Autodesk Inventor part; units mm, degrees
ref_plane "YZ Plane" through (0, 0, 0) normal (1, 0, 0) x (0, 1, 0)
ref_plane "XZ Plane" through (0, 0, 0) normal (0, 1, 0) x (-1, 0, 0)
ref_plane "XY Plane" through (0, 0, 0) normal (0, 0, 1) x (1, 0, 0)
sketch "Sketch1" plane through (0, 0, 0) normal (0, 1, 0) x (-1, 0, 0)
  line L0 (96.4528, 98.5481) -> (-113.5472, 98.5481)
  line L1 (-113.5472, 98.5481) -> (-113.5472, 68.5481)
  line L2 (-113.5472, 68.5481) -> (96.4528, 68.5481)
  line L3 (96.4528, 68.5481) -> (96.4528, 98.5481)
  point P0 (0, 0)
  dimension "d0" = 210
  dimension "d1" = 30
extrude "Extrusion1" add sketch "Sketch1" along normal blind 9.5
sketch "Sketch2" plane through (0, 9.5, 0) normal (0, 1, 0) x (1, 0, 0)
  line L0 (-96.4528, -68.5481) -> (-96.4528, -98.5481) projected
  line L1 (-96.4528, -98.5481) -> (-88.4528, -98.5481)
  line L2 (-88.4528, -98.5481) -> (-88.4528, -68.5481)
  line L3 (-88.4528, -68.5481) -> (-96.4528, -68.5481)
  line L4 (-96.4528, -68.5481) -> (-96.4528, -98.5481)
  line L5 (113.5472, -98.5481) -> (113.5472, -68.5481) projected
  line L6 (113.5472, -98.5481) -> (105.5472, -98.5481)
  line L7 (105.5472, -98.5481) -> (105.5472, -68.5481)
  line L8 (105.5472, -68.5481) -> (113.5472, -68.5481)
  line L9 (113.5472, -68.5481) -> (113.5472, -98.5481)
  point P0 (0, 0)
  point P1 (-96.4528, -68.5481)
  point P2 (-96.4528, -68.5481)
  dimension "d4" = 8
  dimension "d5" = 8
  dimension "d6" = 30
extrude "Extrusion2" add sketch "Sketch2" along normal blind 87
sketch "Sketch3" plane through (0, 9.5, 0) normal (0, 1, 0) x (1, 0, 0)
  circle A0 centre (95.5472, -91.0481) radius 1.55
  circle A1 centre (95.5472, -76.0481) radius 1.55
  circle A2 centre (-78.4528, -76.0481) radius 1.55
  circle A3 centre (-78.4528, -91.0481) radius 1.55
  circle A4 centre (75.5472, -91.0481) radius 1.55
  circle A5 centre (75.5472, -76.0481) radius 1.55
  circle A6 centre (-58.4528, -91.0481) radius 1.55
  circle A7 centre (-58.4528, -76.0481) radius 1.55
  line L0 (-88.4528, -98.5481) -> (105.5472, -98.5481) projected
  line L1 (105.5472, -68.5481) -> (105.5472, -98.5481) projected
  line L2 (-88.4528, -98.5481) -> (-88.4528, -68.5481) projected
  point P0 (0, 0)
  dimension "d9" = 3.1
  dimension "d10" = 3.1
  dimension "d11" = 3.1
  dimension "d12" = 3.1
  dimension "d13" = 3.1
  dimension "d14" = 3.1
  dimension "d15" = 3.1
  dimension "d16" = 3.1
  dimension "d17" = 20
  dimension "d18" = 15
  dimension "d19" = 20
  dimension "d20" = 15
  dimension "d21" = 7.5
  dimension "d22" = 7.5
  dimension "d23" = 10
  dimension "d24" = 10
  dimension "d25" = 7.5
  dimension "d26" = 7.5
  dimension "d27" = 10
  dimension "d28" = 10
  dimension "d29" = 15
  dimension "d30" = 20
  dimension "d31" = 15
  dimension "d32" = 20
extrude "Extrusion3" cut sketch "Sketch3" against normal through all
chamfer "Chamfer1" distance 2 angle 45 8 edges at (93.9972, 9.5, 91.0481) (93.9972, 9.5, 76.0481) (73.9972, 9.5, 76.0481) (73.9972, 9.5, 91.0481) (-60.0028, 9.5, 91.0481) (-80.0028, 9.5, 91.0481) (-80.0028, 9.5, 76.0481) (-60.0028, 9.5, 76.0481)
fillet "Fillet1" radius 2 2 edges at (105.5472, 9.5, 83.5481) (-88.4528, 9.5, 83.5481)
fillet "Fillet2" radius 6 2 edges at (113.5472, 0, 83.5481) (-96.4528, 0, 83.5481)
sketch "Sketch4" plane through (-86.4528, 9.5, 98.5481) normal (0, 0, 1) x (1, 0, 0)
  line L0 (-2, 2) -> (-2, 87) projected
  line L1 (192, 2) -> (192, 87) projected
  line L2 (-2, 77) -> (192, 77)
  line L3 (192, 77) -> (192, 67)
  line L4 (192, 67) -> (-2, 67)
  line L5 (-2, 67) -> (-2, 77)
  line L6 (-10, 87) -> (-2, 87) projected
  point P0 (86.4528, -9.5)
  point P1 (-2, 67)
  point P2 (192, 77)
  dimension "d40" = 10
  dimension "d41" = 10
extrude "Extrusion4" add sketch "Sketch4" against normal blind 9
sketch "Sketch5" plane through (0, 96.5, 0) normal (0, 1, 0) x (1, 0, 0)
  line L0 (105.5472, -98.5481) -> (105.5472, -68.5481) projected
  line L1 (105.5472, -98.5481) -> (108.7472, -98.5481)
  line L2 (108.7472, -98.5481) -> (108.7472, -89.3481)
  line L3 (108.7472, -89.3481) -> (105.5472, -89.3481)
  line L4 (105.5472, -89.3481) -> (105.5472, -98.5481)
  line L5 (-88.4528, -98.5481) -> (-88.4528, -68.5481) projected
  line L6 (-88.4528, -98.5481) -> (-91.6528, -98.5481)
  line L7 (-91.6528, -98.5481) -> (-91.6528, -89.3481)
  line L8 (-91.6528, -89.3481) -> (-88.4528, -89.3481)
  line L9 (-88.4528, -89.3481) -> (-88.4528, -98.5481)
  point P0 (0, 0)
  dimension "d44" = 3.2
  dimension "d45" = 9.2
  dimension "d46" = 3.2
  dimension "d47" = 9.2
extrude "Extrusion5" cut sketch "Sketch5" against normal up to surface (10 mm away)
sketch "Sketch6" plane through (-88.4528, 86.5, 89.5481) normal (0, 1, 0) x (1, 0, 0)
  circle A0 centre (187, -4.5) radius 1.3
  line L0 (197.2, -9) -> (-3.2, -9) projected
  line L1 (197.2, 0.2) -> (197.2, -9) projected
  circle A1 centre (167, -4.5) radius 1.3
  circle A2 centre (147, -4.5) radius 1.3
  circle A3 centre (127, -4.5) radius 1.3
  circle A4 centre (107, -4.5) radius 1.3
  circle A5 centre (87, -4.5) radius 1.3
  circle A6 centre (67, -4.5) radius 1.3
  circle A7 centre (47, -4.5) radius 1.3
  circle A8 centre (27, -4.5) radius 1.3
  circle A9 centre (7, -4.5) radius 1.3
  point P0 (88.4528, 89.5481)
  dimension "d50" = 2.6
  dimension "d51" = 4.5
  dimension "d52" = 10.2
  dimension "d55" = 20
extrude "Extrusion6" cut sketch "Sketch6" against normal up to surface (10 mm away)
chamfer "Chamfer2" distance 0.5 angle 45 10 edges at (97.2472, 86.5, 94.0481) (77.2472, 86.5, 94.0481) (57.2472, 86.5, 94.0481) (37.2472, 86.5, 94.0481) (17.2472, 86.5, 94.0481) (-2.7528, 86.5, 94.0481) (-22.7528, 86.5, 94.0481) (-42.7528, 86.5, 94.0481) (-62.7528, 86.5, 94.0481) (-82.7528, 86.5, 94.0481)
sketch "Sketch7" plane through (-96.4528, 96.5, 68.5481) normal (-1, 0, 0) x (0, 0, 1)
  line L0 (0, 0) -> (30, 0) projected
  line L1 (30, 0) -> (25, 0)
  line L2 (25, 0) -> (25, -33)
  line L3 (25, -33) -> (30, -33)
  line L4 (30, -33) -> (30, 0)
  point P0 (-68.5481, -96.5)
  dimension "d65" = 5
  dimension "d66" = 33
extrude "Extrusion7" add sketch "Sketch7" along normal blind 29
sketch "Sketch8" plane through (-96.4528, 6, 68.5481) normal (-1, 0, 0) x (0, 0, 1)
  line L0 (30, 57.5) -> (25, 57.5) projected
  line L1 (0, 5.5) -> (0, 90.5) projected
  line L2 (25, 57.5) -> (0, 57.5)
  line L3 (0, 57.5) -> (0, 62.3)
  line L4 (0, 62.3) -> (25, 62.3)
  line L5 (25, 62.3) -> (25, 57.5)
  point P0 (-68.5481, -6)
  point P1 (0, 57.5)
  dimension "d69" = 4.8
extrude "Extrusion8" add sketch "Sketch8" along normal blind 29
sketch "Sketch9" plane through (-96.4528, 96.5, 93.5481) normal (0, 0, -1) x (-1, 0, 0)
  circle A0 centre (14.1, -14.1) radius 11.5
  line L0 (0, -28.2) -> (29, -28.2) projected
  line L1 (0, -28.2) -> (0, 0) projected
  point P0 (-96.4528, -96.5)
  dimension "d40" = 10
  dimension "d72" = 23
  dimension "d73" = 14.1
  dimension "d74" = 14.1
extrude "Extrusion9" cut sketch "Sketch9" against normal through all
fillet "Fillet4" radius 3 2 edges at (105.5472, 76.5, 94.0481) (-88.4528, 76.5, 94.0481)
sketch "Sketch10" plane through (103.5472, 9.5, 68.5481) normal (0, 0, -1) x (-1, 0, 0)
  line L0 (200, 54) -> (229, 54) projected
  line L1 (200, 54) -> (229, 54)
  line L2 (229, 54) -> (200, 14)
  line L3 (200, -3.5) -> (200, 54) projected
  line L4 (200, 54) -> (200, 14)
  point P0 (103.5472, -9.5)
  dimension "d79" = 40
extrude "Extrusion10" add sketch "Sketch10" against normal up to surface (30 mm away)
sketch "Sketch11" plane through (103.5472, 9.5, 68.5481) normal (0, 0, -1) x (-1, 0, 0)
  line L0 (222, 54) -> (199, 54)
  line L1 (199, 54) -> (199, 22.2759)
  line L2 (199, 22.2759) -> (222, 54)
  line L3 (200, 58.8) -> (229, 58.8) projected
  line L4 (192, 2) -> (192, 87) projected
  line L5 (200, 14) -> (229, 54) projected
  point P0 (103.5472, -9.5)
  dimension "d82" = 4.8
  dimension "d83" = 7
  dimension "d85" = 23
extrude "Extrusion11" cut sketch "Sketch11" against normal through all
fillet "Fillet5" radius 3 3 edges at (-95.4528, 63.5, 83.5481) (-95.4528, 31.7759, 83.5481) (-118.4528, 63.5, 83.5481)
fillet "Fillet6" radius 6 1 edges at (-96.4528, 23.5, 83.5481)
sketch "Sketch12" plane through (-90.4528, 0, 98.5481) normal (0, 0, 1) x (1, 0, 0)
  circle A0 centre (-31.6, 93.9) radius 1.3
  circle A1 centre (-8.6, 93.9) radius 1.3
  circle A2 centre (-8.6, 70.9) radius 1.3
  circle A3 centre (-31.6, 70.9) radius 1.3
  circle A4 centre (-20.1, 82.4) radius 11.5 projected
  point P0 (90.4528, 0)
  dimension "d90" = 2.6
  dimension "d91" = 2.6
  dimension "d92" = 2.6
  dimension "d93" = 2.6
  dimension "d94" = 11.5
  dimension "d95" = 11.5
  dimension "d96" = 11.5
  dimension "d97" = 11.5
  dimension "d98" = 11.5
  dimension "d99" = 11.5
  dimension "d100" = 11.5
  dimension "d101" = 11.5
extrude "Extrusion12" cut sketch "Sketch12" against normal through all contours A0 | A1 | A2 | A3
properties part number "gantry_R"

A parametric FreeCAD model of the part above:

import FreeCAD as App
import Part
import Sketcher

V = App.Vector


def edges_at(feature, points):
    """Names of the edges that pass closest to the given points."""
    edges = feature.Shape.Edges
    near = lambda p: min(range(len(edges)), key=lambda i: edges[i].distToShape(Part.Vertex(*p))[0])
    return sorted({f"Edge{near(p) + 1}" for p in points})


def add_polygon(sketch, points):
    """Adds a closed chain of lines whose ends are joined by coincident constraints."""
    first, n = sketch.GeometryCount, len(points)
    for a, b in zip(points, points[1:] + points[:1]):
        sketch.addGeometry(Part.LineSegment(App.Vector(*a, 0), App.Vector(*b, 0)), False)
    for i in range(n):
        sketch.addConstraint(Sketcher.Constraint("Coincident", first + i, 2, first + (i + 1) % n, 1))

doc = App.newDocument("Part")
body = doc.addObject("PartDesign::Body", "Body")

# Sketch on XZ plane
sketch1 = body.newObject("Sketcher::SketchObject", "Sketch")
sketch1.AttachmentSupport = (doc.getObject("XZ_Plane"), [""])
sketch1.MapMode = "FlatFace"
add_polygon(sketch1, [(-96, 69), (-96, 99), (114, 99), (114, 69)])  # lines 0-3
sketch1.addConstraint([
    Sketcher.Constraint("Vertical", 0),
    Sketcher.Constraint("Horizontal", 1),
    Sketcher.Constraint("Vertical", 2),
    Sketcher.Constraint("Horizontal", 3),
    Sketcher.Constraint("DistanceX", 1, 1, 1, 2, 210.0),
    Sketcher.Constraint("DistanceY", 0, 1, 0, 2, 30.0),
    Sketcher.Constraint("DistanceY", -1, 1, 0, 2, 98.548),
    Sketcher.Constraint("DistanceX", 0, 2, -1, 1, 96.4528),
])
pad1 = body.newObject("PartDesign::Pad", "Pad")
pad1.Profile = sketch1
pad1.Length = 9.5
pad1.Reversed = True

# Sketch on XZ plane
sketch2 = body.newObject("Sketcher::SketchObject", "Sketch001")
sketch2.AttachmentSupport = (doc.getObject("XZ_Plane"), [""])
sketch2.MapMode = "FlatFace"
sketch2.AttachmentOffset = App.Placement(V(0, 0, -9.5), App.Rotation())
add_polygon(sketch2, [(-88, 69), (-96, 69), (-96, 99), (-88, 99)])  # lines 0-3
add_polygon(sketch2, [(106, 99), (114, 99), (114, 69), (106, 69)])  # lines 4-7
sketch2.addConstraint([
    Sketcher.Constraint("Horizontal", 0),
    Sketcher.Constraint("Vertical", 1),
    Sketcher.Constraint("Horizontal", 2),
    Sketcher.Constraint("Vertical", 3),
    Sketcher.Constraint("Horizontal", 4),
    Sketcher.Constraint("Vertical", 5),
    Sketcher.Constraint("Horizontal", 6),
    Sketcher.Constraint("Vertical", 7),
    Sketcher.Constraint("Horizontal", 2, 2, 4, 2),
    Sketcher.Constraint("Horizontal", 3, 2, 5, 2),
    Sketcher.Constraint("Equal", 2, 4),
    Sketcher.Constraint("DistanceX", 0, 2, 0, 1, 8.0),
    Sketcher.Constraint("DistanceY", 1, 1, 1, 2, 30.0),
    Sketcher.Constraint("DistanceX", 2, 2, 4, 2, 202.0),
    Sketcher.Constraint("DistanceY", -1, 1, 0, 2, 68.548),
    Sketcher.Constraint("DistanceX", 0, 2, -1, 1, 96.4528),
])
pad2 = body.newObject("PartDesign::Pad", "Pad001")
pad2.Profile = sketch2
pad2.Length = 87
pad2.Reversed = True

# Sketch on XZ plane
sketch3 = body.newObject("Sketcher::SketchObject", "Sketch002")
sketch3.AttachmentSupport = (doc.getObject("XZ_Plane"), [""])
sketch3.MapMode = "FlatFace"
sketch3.AttachmentOffset = App.Placement(V(0, 0, -9.5), App.Rotation())
sketch3.addGeometry([
    Part.Circle(V(95.5, 91, 0), V(0, 0, 1), 1.6),  # 0
    Part.Circle(V(95.5, 76, 0), V(0, 0, 1), 1.6),  # 1
    Part.Circle(V(-78.5, 76, 0), V(0, 0, 1), 1.6),  # 2
    Part.Circle(V(-78.5, 91, 0), V(0, 0, 1), 1.6),  # 3
    Part.Circle(V(75.5, 91, 0), V(0, 0, 1), 1.6),  # 4
    Part.Circle(V(75.5, 76, 0), V(0, 0, 1), 1.6),  # 5
    Part.Circle(V(-58.5, 91, 0), V(0, 0, 1), 1.6),  # 6
    Part.Circle(V(-58.5, 76, 0), V(0, 0, 1), 1.6),  # 7
], False)
sketch3.addConstraint([
    Sketcher.Constraint("Equal", 0, 1),
    Sketcher.Constraint("Equal", 1, 2),
    Sketcher.Constraint("Equal", 2, 3),
    Sketcher.Constraint("Equal", 3, 4),
    Sketcher.Constraint("Equal", 4, 5),
    Sketcher.Constraint("Equal", 5, 6),
    Sketcher.Constraint("Equal", 6, 7),
    Sketcher.Constraint("Horizontal", 1, 3, 2, 3),
    Sketcher.Constraint("Horizontal", 0, 3, 3, 3),
    Sketcher.Constraint("Horizontal", 3, 3, 4, 3),
    Sketcher.Constraint("Horizontal", 2, 3, 5, 3),
    Sketcher.Constraint("Horizontal", 4, 3, 6, 3),
    Sketcher.Constraint("Horizontal", 5, 3, 7, 3),
    Sketcher.Constraint("Vertical", 0, 3, 1, 3),
    Sketcher.Constraint("Vertical", 2, 3, 3, 3),
    Sketcher.Constraint("Vertical", 4, 3, 5, 3),
    Sketcher.Constraint("Vertical", 6, 3, 7, 3),
    Sketcher.Constraint("Diameter", 0, 3.1),
    Sketcher.Constraint("DistanceY", 1, 3, 0, 3, 15.0),
    Sketcher.Constraint("DistanceX", 4, 3, 0, 3, 20.0),
    Sketcher.Constraint("DistanceX", 3, 3, 6, 3, 20.0),
    Sketcher.Constraint("DistanceX", 2, 3, 1, 3, 174.0),
    Sketcher.Constraint("DistanceY", -1, 1, 0, 3, 91.048),
    Sketcher.Constraint("DistanceX", -1, 1, 0, 3, 95.5472),
])
pocket1 = body.newObject("PartDesign::Pocket", "Pocket")
pocket1.Profile = sketch3
pocket1.Type = "ThroughAll"
pocket1.Reversed = True
doc.recompute()

chamfer = body.newObject("PartDesign::Chamfer", "Chamfer")
chamfer.Base = (pocket1, edges_at(pocket1, [
    (93.997, 9.5, 91.048),
    (93.997, 9.5, 76.048),
    (73.997, 9.5, 76.048),
    (73.997, 9.5, 91.048),
    (-60.003, 9.5, 91.048),
    (-80.003, 9.5, 91.048),
    (-80.003, 9.5, 76.048),
    (-60.003, 9.5, 76.048),
]))
chamfer.Size = 2
doc.recompute()

fillet = body.newObject("PartDesign::Fillet", "Fillet")
fillet.Base = (chamfer, edges_at(chamfer, [(105.547, 9.5, 83.548), (-88.453, 9.5, 83.548)]))
fillet.Radius = 2
doc.recompute()

fillet2 = body.newObject("PartDesign::Fillet", "Fillet001")
fillet2.Base = (fillet, edges_at(fillet, [(113.547, 0, 83.548), (-96.453, 0, 83.548)]))
fillet2.Radius = 6

# Sketch on XY plane
sketch4 = body.newObject("Sketcher::SketchObject", "Sketch003")
sketch4.AttachmentSupport = (doc.getObject("XY_Plane"), [""])
sketch4.MapMode = "FlatFace"
sketch4.AttachmentOffset = App.Placement(V(0, 0, 98.5481), App.Rotation())
add_polygon(sketch4, [(-88, 86), (-88, 76), (106, 76), (106, 86)])  # lines 0-3
sketch4.addConstraint([
    Sketcher.Constraint("Vertical", 0),
    Sketcher.Constraint("Horizontal", 1),
    Sketcher.Constraint("Vertical", 2),
    Sketcher.Constraint("Horizontal", 3),
    Sketcher.Constraint("DistanceY", 0, 2, 0, 1, 10.0),
    Sketcher.Constraint("DistanceX", 1, 1, 1, 2, 194.0),
    Sketcher.Constraint("DistanceY", -1, 1, 0, 2, 76.5),
    Sketcher.Constraint("DistanceX", 0, 2, -1, 1, 88.4528),
])
pad3 = body.newObject("PartDesign::Pad", "Pad002")
pad3.Profile = sketch4
pad3.Length = 9
pad3.Reversed = True

# Sketch on XZ plane
sketch5 = body.newObject("Sketcher::SketchObject", "Sketch004")
sketch5.AttachmentSupport = (doc.getObject("XZ_Plane"), [""])
sketch5.MapMode = "FlatFace"
sketch5.AttachmentOffset = App.Placement(V(0, 0, -96.5), App.Rotation())
add_polygon(sketch5, [(105.5, 89.3), (105.5, 98.5), (108.7, 98.5), (108.7, 89.3)])  # lines 0-3
add_polygon(sketch5, [(-91.7, 98.5), (-88.5, 98.5), (-88.5, 89.3), (-91.7, 89.3)])  # lines 4-7
sketch5.addConstraint([
    Sketcher.Constraint("Vertical", 0),
    Sketcher.Constraint("Horizontal", 1),
    Sketcher.Constraint("Vertical", 2),
    Sketcher.Constraint("Horizontal", 3),
    Sketcher.Constraint("Horizontal", 4),
    Sketcher.Constraint("Vertical", 5),
    Sketcher.Constraint("Horizontal", 6),
    Sketcher.Constraint("Vertical", 7),
    Sketcher.Constraint("Horizontal", 1, 2, 4, 2),
    Sketcher.Constraint("Horizontal", 3, 2, 5, 2),
    Sketcher.Constraint("Equal", 3, 4),
    Sketcher.Constraint("DistanceX", 1, 1, 1, 2, 3.2),
    Sketcher.Constraint("DistanceY", 0, 1, 0, 2, 9.2),
    Sketcher.Constraint("DistanceX", 4, 2, 0, 2, 194.0),
    Sketcher.Constraint("DistanceY", -1, 1, 0, 2, 98.548),
    Sketcher.Constraint("DistanceX", -1, 1, 0, 2, 105.5472),
])
pocket2 = body.newObject("PartDesign::Pocket", "Pocket001")
pocket2.Profile = sketch5
pocket2.Length = 10
pocket2.Reversed = True

# Sketch on XZ plane
sketch6 = body.newObject("Sketcher::SketchObject", "Sketch005")
sketch6.AttachmentSupport = (doc.getObject("XZ_Plane"), [""])
sketch6.MapMode = "FlatFace"
sketch6.AttachmentOffset = App.Placement(V(0, 0, -86.5), App.Rotation())
sketch6.addGeometry([
    Part.Circle(V(98.5, 94, 0), V(0, 0, 1), 1.3),  # 0
    Part.Circle(V(78.5, 94, 0), V(0, 0, 1), 1.3),  # 1
    Part.Circle(V(58.5, 94, 0), V(0, 0, 1), 1.3),  # 2
    Part.Circle(V(38.5, 94, 0), V(0, 0, 1), 1.3),  # 3
    Part.Circle(V(18.5, 94, 0), V(0, 0, 1), 1.3),  # 4
    Part.Circle(V(-1.5, 94, 0), V(0, 0, 1), 1.3),  # 5
    Part.Circle(V(-21.5, 94, 0), V(0, 0, 1), 1.3),  # 6
    Part.Circle(V(-41.5, 94, 0), V(0, 0, 1), 1.3),  # 7
    Part.Circle(V(-61.5, 94, 0), V(0, 0, 1), 1.3),  # 8
    Part.Circle(V(-81.5, 94, 0), V(0, 0, 1), 1.3),  # 9
], False)
sketch6.addConstraint([
    Sketcher.Constraint("Equal", 0, 1),
    Sketcher.Constraint("Equal", 1, 2),
    Sketcher.Constraint("Equal", 2, 3),
    Sketcher.Constraint("Equal", 3, 4),
    Sketcher.Constraint("Equal", 4, 5),
    Sketcher.Constraint("Equal", 5, 6),
    Sketcher.Constraint("Equal", 6, 7),
    Sketcher.Constraint("Equal", 7, 8),
    Sketcher.Constraint("Equal", 8, 9),
    Sketcher.Constraint("Horizontal", 0, 3, 1, 3),
    Sketcher.Constraint("Horizontal", 1, 3, 2, 3),
    Sketcher.Constraint("Horizontal", 2, 3, 3, 3),
    Sketcher.Constraint("Horizontal", 3, 3, 4, 3),
    Sketcher.Constraint("Horizontal", 4, 3, 5, 3),
    Sketcher.Constraint("Horizontal", 5, 3, 6, 3),
    Sketcher.Constraint("Horizontal", 6, 3, 7, 3),
    Sketcher.Constraint("Horizontal", 7, 3, 8, 3),
    Sketcher.Constraint("Horizontal", 8, 3, 9, 3),
    Sketcher.Constraint("Diameter", 0, 2.6),
    Sketcher.Constraint("DistanceX", 1, 3, 0, 3, 20.0),
    Sketcher.Constraint("DistanceX", 2, 3, 1, 3, 20.0),
    Sketcher.Constraint("DistanceX", 3, 3, 2, 3, 20.0),
    Sketcher.Constraint("DistanceX", 4, 3, 3, 3, 20.0),
    Sketcher.Constraint("DistanceX", 5, 3, 4, 3, 20.0),
    Sketcher.Constraint("DistanceX", 6, 3, 5, 3, 20.0),
    Sketcher.Constraint("DistanceX", 7, 3, 6, 3, 20.0),
    Sketcher.Constraint("DistanceX", 8, 3, 7, 3, 20.0),
    Sketcher.Constraint("DistanceX", 9, 3, 8, 3, 20.0),
    Sketcher.Constraint("DistanceY", -1, 1, 0, 3, 94.048),
    Sketcher.Constraint("DistanceX", -1, 1, 0, 3, 98.5472),
])
pocket3 = body.newObject("PartDesign::Pocket", "Pocket002")
pocket3.Profile = sketch6
pocket3.Length = 10
pocket3.Reversed = True
doc.recompute()

chamfer2 = body.newObject("PartDesign::Chamfer", "Chamfer001")
chamfer2.Base = (pocket3, edges_at(pocket3, [
    (97.247, 86.5, 94.048),
    (77.247, 86.5, 94.048),
    (57.247, 86.5, 94.048),
    (37.247, 86.5, 94.048),
    (17.247, 86.5, 94.048),
    (-2.753, 86.5, 94.048),
    (-22.753, 86.5, 94.048),
    (-42.753, 86.5, 94.048),
    (-62.753, 86.5, 94.048),
    (-82.753, 86.5, 94.048),
]))
chamfer2.Size = 0.5

# Sketch on YZ plane
sketch7 = body.newObject("Sketcher::SketchObject", "Sketch006")
sketch7.AttachmentSupport = (doc.getObject("YZ_Plane"), [""])
sketch7.MapMode = "FlatFace"
sketch7.AttachmentOffset = App.Placement(V(0, 0, -96.4528), App.Rotation())
add_polygon(sketch7, [(96, 99), (96, 94), (64, 94), (64, 99)])  # lines 0-3
sketch7.addConstraint([
    Sketcher.Constraint("Vertical", 0),
    Sketcher.Constraint("Horizontal", 1),
    Sketcher.Constraint("Vertical", 2),
    Sketcher.Constraint("Horizontal", 3),
    Sketcher.Constraint("DistanceX", 1, 2, 1, 1, 33.0),
    Sketcher.Constraint("DistanceY", 0, 2, 0, 1, 5.0),
    Sketcher.Constraint("DistanceX", -1, 1, 0, 2, 96.5),
    Sketcher.Constraint("DistanceY", -1, 1, 0, 2, 93.548),
])
pad4 = body.newObject("PartDesign::Pad", "Pad003")
pad4.Profile = sketch7
pad4.Length = 29
pad4.Reversed = True

# Sketch on YZ plane
sketch8 = body.newObject("Sketcher::SketchObject", "Sketch007")
sketch8.AttachmentSupport = (doc.getObject("YZ_Plane"), [""])
sketch8.MapMode = "FlatFace"
sketch8.AttachmentOffset = App.Placement(V(0, 0, -96.4528), App.Rotation())
add_polygon(sketch8, [(68.3, 68.5), (63.5, 68.5), (63.5, 93.5), (68.3, 93.5)])  # lines 0-3
sketch8.addConstraint([
    Sketcher.Constraint("Horizontal", 0),
    Sketcher.Constraint("Vertical", 1),
    Sketcher.Constraint("Horizontal", 2),
    Sketcher.Constraint("Vertical", 3),
    Sketcher.Constraint("DistanceX", 0, 2, 0, 1, 4.8),
    Sketcher.Constraint("DistanceY", 1, 1, 1, 2, 25.0),
    Sketcher.Constraint("DistanceX", -1, 1, 0, 2, 63.5),
    Sketcher.Constraint("DistanceY", -1, 1, 0, 2, 68.548),
])
pad5 = body.newObject("PartDesign::Pad", "Pad004")
pad5.Profile = sketch8
pad5.Length = 29
pad5.Reversed = True

# Sketch on XY plane
sketch9 = body.newObject("Sketcher::SketchObject", "Sketch008")
sketch9.AttachmentSupport = (doc.getObject("XY_Plane"), [""])
sketch9.MapMode = "FlatFace"
sketch9.AttachmentOffset = App.Placement(V(0, 0, 93.5481), App.Rotation())
sketch9.addGeometry(Part.Circle(V(-111, 82, 0), V(0, 0, 1), 12), False)
sketch9.addConstraint([
    Sketcher.Constraint("Diameter", 0, 23.0),
    Sketcher.Constraint("DistanceY", -1, 1, 0, 3, 82.4),
    Sketcher.Constraint("DistanceX", 0, 3, -1, 1, 110.5528),
])
pocket4 = body.newObject("PartDesign::Pocket", "Pocket003")
pocket4.Profile = sketch9
pocket4.Type = "ThroughAll"
pocket4.Reversed = True
doc.recompute()

fillet3 = body.newObject("PartDesign::Fillet", "Fillet002")
fillet3.Base = (pocket4, edges_at(pocket4, [(105.547, 76.5, 94.048), (-88.453, 76.5, 94.048)]))
fillet3.Radius = 3

# Sketch on XY plane
sketch10 = body.newObject("Sketcher::SketchObject", "Sketch009")
sketch10.AttachmentSupport = (doc.getObject("XY_Plane"), [""])
sketch10.MapMode = "FlatFace"
sketch10.AttachmentOffset = App.Placement(V(0, 0, 68.5481), App.Rotation())
add_polygon(sketch10, [(-125, 64), (-96, 64), (-96, 24)])  # lines 0-2
sketch10.addConstraint([
    Sketcher.Constraint("Horizontal", 0),
    Sketcher.Constraint("Vertical", 1),
    Sketcher.Constraint("DistanceY", 1, 2, 1, 1, 40.0),
    Sketcher.Constraint("DistanceX", 0, 1, 0, 2, 29.0),
    Sketcher.Constraint("DistanceY", -1, 1, 0, 2, 63.5),
    Sketcher.Constraint("DistanceX", 0, 2, -1, 1, 96.4528),
])
pad6 = body.newObject("PartDesign::Pad", "Pad005")
pad6.Profile = sketch10
pad6.Length = 30

# Sketch on XY plane
sketch11 = body.newObject("Sketcher::SketchObject", "Sketch010")
sketch11.AttachmentSupport = (doc.getObject("XY_Plane"), [""])
sketch11.MapMode = "FlatFace"
sketch11.AttachmentOffset = App.Placement(V(0, 0, 68.5481), App.Rotation())
add_polygon(sketch11, [(-95, 32), (-118, 64), (-95, 64)])  # lines 0-2
sketch11.addConstraint([
    Sketcher.Constraint("Horizontal", 1),
    Sketcher.Constraint("Vertical", 2),
    Sketcher.Constraint("DistanceX", 1, 1, 1, 2, 23.0),
    Sketcher.Constraint("DistanceY", -1, 1, 0, 2, 63.5),
    Sketcher.Constraint("DistanceY", 2, 2, 2, 1, 31.724),
    Sketcher.Constraint("DistanceX", 0, 2, -1, 1, 118.4528),
])
pocket5 = body.newObject("PartDesign::Pocket", "Pocket004")
pocket5.Profile = sketch11
pocket5.Type = "ThroughAll"
pocket5.Reversed = True
doc.recompute()

fillet4 = body.newObject("PartDesign::Fillet", "Fillet003")
fillet4.Base = (pocket5, edges_at(pocket5, [(-95.453, 63.5, 83.548), (-95.453, 31.776, 83.548), (-118.453, 63.5, 83.548)]))
fillet4.Radius = 3
doc.recompute()

fillet5 = body.newObject("PartDesign::Fillet", "Fillet004")
fillet5.Base = (fillet4, edges_at(fillet4, [(-96.453, 23.5, 83.548)]))
fillet5.Radius = 6

# Sketch on XY plane
sketch12 = body.newObject("Sketcher::SketchObject", "Sketch011")
sketch12.AttachmentSupport = (doc.getObject("XY_Plane"), [""])
sketch12.MapMode = "FlatFace"
sketch12.AttachmentOffset = App.Placement(V(0, 0, 98.5481), App.Rotation())
sketch12.addGeometry([
    Part.Circle(V(-122.1, 93.9, 0), V(0, 0, 1), 1.3),
    Part.Circle(V(-99.1, 93.9, 0), V(0, 0, 1), 1.3),
    Part.Circle(V(-99.1, 70.9, 0), V(0, 0, 1), 1.3),
    Part.Circle(V(-122.1, 70.9, 0), V(0, 0, 1), 1.3),
], False)
sketch12.addConstraint([
    Sketcher.Constraint("Equal", 0, 1),
    Sketcher.Constraint("Equal", 1, 2),
    Sketcher.Constraint("Equal", 2, 3),
    Sketcher.Constraint("Horizontal", 0, 3, 1, 3),
    Sketcher.Constraint("Horizontal", 2, 3, 3, 3),
    Sketcher.Constraint("Vertical", 1, 3, 2, 3),
    Sketcher.Constraint("Vertical", 0, 3, 3, 3),
    Sketcher.Constraint("Diameter", 0, 2.6),
    Sketcher.Constraint("DistanceX", 0, 3, 1, 3, 23.0),
    Sketcher.Constraint("DistanceY", 2, 3, 1, 3, 23.0),
    Sketcher.Constraint("DistanceY", -1, 1, 0, 3, 93.9),
    Sketcher.Constraint("DistanceX", 0, 3, -1, 1, 122.0528),
])
pocket6 = body.newObject("PartDesign::Pocket", "Pocket005")
pocket6.Profile = sketch12
pocket6.Type = "ThroughAll"

doc.recompute()
